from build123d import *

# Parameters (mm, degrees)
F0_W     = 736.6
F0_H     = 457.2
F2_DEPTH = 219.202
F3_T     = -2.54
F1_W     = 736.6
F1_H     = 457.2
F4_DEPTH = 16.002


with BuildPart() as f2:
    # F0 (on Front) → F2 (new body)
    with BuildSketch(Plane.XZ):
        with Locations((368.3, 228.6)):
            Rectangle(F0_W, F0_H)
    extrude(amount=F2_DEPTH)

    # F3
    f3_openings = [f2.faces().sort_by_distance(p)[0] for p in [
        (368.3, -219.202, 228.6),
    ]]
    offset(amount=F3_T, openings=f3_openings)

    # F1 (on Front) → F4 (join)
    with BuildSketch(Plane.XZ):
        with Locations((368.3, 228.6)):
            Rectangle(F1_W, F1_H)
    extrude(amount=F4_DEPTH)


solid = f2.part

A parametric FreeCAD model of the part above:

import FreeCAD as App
import Part
import Sketcher
Q = App.Units.Quantity


def faces_at(feature, points):
    """Names of the faces that lie closest to the given points."""
    faces = feature.Shape.Faces
    near = lambda p: min(range(len(faces)), key=lambda i: faces[i].distToShape(Part.Vertex(*p))[0])
    return sorted({f"Face{near(p) + 1}" for p in points})


def add_polygon(sketch, points):
    """Adds a closed chain of lines whose ends are joined by coincident constraints."""
    first, n = sketch.GeometryCount, len(points)
    for a, b in zip(points, points[1:] + points[:1]):
        sketch.addGeometry(Part.LineSegment(App.Vector(*a, 0), App.Vector(*b, 0)), False)
    for i in range(n):
        sketch.addConstraint(Sketcher.Constraint("Coincident", first + i, 2, first + (i + 1) % n, 1))

doc = App.newDocument("Part")
body = doc.addObject("PartDesign::Body", "Body")

# Sketch on XZ plane
sketch1 = body.newObject("Sketcher::SketchObject", "Sketch")
sketch1.AttachmentSupport = (doc.getObject("XZ_Plane"), [""])
sketch1.MapMode = "FlatFace"
add_polygon(sketch1, [(0, 457), (0, 0), (737, 0), (737, 457)])  # lines 0-3
sketch1.addConstraint([
    Sketcher.Constraint("Vertical", 0),
    Sketcher.Constraint("Horizontal", 1),
    Sketcher.Constraint("Vertical", 2),
    Sketcher.Constraint("Horizontal", 3),
    Sketcher.Constraint("Coincident", 0, 2, -1, 1),
    Sketcher.Constraint("DistanceX", 1, 1, 1, 2, Q("29 in")),
    Sketcher.Constraint("DistanceY", 0, 2, 0, 1, Q("18 in")),
])
pad1 = body.newObject("PartDesign::Pad", "Pad")
pad1.Profile = sketch1
pad1.Length = Q("8.63 in")
doc.recompute()

thickness = body.newObject("PartDesign::Thickness", "Thickness")
thickness.Base = (pad1, faces_at(pad1, [(368.3, -219.202, 228.6)]))
thickness.Value = Q("0.1 in")
thickness.Reversed = True
thickness.Join = "Arc"

# Sketch on XZ plane
sketch2 = body.newObject("Sketcher::SketchObject", "Sketch001")
sketch2.AttachmentSupport = (doc.getObject("XZ_Plane"), [""])
sketch2.MapMode = "FlatFace"
add_polygon(sketch2, [(0, 457), (0, 0), (737, 0), (737, 457)])  # lines 0-3
sketch2.addConstraint([
    Sketcher.Constraint("Vertical", 0),
    Sketcher.Constraint("Horizontal", 1),
    Sketcher.Constraint("Vertical", 2),
    Sketcher.Constraint("Horizontal", 3),
    Sketcher.Constraint("Coincident", 0, 2, -1, 1),
    Sketcher.Constraint("DistanceX", 1, 1, 1, 2, Q("29 in")),
    Sketcher.Constraint("DistanceY", 0, 2, 0, 1, Q("18 in")),
])
pad2 = body.newObject("PartDesign::Pad", "Pad001")
pad2.Profile = sketch2
pad2.Length = Q("0.63 in")

doc.recompute()
